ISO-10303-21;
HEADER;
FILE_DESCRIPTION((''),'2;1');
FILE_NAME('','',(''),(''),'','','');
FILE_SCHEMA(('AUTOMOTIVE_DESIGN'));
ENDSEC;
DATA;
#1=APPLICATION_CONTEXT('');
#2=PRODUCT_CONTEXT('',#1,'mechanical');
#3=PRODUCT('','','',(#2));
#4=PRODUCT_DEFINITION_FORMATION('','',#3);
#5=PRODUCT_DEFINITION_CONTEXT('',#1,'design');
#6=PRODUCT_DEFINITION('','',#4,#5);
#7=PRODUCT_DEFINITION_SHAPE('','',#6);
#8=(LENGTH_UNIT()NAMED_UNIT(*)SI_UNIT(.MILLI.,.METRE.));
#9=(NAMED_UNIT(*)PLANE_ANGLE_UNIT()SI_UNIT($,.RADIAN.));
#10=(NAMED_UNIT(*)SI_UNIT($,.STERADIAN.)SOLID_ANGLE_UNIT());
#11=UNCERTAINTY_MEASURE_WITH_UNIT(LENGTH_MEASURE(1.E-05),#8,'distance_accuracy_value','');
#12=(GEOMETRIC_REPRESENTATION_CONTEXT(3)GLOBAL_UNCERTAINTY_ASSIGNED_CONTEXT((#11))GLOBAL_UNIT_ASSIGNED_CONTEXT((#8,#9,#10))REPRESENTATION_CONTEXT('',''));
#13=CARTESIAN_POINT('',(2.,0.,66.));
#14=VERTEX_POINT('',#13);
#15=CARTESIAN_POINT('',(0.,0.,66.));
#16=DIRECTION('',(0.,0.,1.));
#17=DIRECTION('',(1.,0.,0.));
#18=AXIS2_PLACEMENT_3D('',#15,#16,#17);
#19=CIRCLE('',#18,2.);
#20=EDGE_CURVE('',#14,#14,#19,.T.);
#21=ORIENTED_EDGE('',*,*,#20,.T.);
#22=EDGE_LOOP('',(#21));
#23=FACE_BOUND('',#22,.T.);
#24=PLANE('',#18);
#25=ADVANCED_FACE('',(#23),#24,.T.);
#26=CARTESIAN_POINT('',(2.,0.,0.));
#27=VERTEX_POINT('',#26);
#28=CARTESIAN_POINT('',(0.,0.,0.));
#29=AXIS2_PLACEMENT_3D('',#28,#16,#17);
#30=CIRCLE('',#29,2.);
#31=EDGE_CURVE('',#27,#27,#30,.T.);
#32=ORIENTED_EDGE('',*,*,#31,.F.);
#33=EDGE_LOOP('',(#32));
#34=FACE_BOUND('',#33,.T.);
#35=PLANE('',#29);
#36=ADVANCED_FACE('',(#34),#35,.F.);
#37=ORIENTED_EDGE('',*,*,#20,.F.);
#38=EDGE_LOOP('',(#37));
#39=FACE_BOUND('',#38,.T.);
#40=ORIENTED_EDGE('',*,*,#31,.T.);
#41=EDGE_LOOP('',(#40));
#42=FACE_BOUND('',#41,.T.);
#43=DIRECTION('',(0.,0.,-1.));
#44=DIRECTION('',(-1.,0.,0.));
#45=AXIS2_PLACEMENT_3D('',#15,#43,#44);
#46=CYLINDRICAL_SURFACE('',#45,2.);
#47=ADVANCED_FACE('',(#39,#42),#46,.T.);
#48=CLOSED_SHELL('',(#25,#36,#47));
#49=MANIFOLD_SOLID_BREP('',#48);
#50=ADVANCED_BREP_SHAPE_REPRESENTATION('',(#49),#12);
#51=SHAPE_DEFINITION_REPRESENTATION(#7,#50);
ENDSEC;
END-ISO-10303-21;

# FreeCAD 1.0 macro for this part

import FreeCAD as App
import Part
import Sketcher
from FreeCAD import Vector
Q = App.Units.Quantity

doc = App.newDocument("Part")
body = doc.addObject("PartDesign::Body", "Body")

sketch1 = body.newObject("Sketcher::SketchObject", "Sketch")
sketch1.AttachmentSupport = (doc.getObject("XY_Plane"), [""])
sketch1.MapMode = "FlatFace"
sketch1.addGeometry(Part.Circle(Vector(0, 0, 0), Vector(0, 0, 1), 2), False)
sketch1.addConstraint([
    Sketcher.Constraint("Coincident", 0, 3, -1, 1),
    Sketcher.Constraint("Diameter", 0, Q("4 mm")),
])
pad1 = body.newObject("PartDesign::Pad", "Pad")
pad1.Profile = sketch1
pad1.Length = 66

doc.recompute()
